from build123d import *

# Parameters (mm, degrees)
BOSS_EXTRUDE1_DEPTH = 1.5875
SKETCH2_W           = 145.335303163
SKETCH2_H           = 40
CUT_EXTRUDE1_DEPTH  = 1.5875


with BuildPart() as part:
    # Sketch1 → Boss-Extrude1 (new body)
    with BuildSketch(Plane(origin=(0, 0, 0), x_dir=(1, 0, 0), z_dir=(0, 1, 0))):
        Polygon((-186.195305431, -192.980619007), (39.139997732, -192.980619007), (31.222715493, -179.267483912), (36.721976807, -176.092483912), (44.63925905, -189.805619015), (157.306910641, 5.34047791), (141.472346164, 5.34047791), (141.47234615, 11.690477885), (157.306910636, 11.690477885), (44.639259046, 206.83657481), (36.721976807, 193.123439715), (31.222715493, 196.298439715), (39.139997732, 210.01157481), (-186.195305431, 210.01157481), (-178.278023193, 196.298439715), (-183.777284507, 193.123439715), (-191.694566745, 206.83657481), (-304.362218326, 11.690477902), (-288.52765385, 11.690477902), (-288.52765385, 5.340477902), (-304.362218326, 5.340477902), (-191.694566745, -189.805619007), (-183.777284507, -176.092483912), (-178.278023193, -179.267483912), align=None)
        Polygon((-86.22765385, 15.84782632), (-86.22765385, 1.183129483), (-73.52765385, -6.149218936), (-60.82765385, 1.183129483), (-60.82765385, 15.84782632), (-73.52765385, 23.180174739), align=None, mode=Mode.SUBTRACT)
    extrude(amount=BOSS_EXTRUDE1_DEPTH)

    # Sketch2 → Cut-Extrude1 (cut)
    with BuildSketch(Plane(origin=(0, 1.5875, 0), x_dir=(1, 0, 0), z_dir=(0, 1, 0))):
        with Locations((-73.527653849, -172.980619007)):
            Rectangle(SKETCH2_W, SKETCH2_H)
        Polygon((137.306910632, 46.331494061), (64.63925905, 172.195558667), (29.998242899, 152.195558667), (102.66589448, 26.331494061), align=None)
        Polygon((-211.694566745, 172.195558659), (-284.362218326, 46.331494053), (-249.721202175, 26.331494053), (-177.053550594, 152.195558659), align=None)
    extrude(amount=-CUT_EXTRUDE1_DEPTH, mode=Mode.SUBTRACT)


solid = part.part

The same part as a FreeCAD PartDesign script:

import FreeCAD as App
import Part
import Sketcher

V = App.Vector
Q = App.Units.Quantity


def add_polygon(sketch, points):
    """Adds a closed chain of lines whose ends are joined by coincident constraints."""
    first, n = sketch.GeometryCount, len(points)
    for a, b in zip(points, points[1:] + points[:1]):
        sketch.addGeometry(Part.LineSegment(App.Vector(*a, 0), App.Vector(*b, 0)), False)
    for i in range(n):
        sketch.addConstraint(Sketcher.Constraint("Coincident", first + i, 2, first + (i + 1) % n, 1))

doc = App.newDocument("Part")
body = doc.addObject("PartDesign::Body", "Body")

# Sketch on XZ plane
sketch1 = body.newObject("Sketcher::SketchObject", "Sketch")
sketch1.AttachmentSupport = (doc.getObject("XZ_Plane"), [""])
sketch1.MapMode = "FlatFace"
add_polygon(sketch1, [(-186, 193), (39, 193), (31, 179), (37, 176), (45, 190), (157, -5), (141, -5), (141, -12), (157, -12), (45, -207), (37, -193), (31, -196), (39, -210), (-186, -210), (-178, -196), (-184, -193), (-192, -207), (-304, -12), (-289, -12), (-289, -5), (-304, -5), (-192, 190), (-184, 176), (-178, 179)])  # lines 0-23
add_polygon(sketch1, [(-86, -1), (-86, -16), (-74, -23), (-61, -16), (-61, -1), (-74, 6)])  # lines 24-29
sketch1.addConstraint(Sketcher.Constraint("Horizontal", 0))
sketch1.addConstraint(Sketcher.Constraint("Horizontal", 5))
sketch1.addConstraint(Sketcher.Constraint("Vertical", 6))
sketch1.addConstraint(Sketcher.Constraint("Horizontal", 7))
sketch1.addConstraint(Sketcher.Constraint("Horizontal", 12))
sketch1.addConstraint(Sketcher.Constraint("Horizontal", 17))
sketch1.addConstraint(Sketcher.Constraint("Vertical", 18))
sketch1.addConstraint(Sketcher.Constraint("Horizontal", 19))
sketch1.addConstraint(Sketcher.Constraint("Vertical", 24))
sketch1.addConstraint(Sketcher.Constraint("Vertical", 27))
sketch1.addConstraint(Sketcher.Constraint("Perpendicular", 1, 2))
sketch1.addConstraint(Sketcher.Constraint("Perpendicular", 2, 3))
sketch1.addConstraint(Sketcher.Constraint("Parallel", 3, 8))
sketch1.addConstraint(Sketcher.Constraint("Parallel", 4, 9))
sketch1.addConstraint(Sketcher.Constraint("Perpendicular", 9, 10))
sketch1.addConstraint(Sketcher.Constraint("Perpendicular", 10, 11))
sketch1.addConstraint(Sketcher.Constraint("Parallel", 8, 13))
sketch1.addConstraint(Sketcher.Constraint("Perpendicular", 13, 14))
sketch1.addConstraint(Sketcher.Constraint("Perpendicular", 14, 15))
sketch1.addConstraint(Sketcher.Constraint("Parallel", 11, 16))
sketch1.addConstraint(Sketcher.Constraint("Parallel", 15, 20))
sketch1.addConstraint(Sketcher.Constraint("Parallel", 16, 21))
sketch1.addConstraint(Sketcher.Constraint("Perpendicular", 21, 22))
sketch1.addConstraint(Sketcher.Constraint("Perpendicular", 22, 23))
sketch1.addConstraint(Sketcher.Constraint("Perpendicular", 20, 25))
sketch1.addConstraint(Sketcher.Constraint("Perpendicular", 23, 26))
sketch1.addConstraint(Sketcher.Constraint("Parallel", 25, 28))
sketch1.addConstraint(Sketcher.Constraint("Parallel", 26, 29))
sketch1.addConstraint(Sketcher.Constraint("Horizontal", 10, 2, 13, 2))
sketch1.addConstraint(Sketcher.Constraint("Horizontal", 9, 2, 14, 2))
sketch1.addConstraint(Sketcher.Constraint("Horizontal", 8, 2, 15, 2))
sketch1.addConstraint(Sketcher.Constraint("Horizontal", 7, 2, 16, 2))
sketch1.addConstraint(Sketcher.Constraint("Horizontal", 5, 2, 18, 2))
sketch1.addConstraint(Sketcher.Constraint("Horizontal", 3, 2, 20, 2))
sketch1.addConstraint(Sketcher.Constraint("Horizontal", 2, 2, 21, 2))
sketch1.addConstraint(Sketcher.Constraint("Horizontal", 1, 2, 22, 2))
sketch1.addConstraint(Sketcher.Constraint("Horizontal", 24, 2, 26, 2))
sketch1.addConstraint(Sketcher.Constraint("Horizontal", 27, 2, 29, 2))
sketch1.addConstraint(Sketcher.Constraint("Vertical", 4, 2, 7, 2))
sketch1.addConstraint(Sketcher.Constraint("Vertical", 3, 2, 8, 2))
sketch1.addConstraint(Sketcher.Constraint("Vertical", 2, 2, 9, 2))
sketch1.addConstraint(Sketcher.Constraint("Vertical", 1, 2, 10, 2))
sketch1.addConstraint(Sketcher.Constraint("Vertical", 0, 2, 11, 2))
sketch1.addConstraint(Sketcher.Constraint("Vertical", 16, 2, 19, 2))
sketch1.addConstraint(Sketcher.Constraint("Vertical", 15, 2, 20, 2))
sketch1.addConstraint(Sketcher.Constraint("Equal", 7, 17))
sketch1.addConstraint(Sketcher.Constraint("Equal", 1, 3))
sketch1.addConstraint(Sketcher.Constraint("Angle", 1, Q("-120 deg")))
sketch1.addConstraint(Sketcher.Constraint("DistanceX", 24, 2, 26, 2, Q("1 in")))
sketch1.addConstraint(Sketcher.Constraint("DistanceY", 6, 2, 6, 1, Q("0.25 in")))
sketch1.addConstraint(Sketcher.Constraint("Distance", 2, Q("0.25 in")))
sketch1.addConstraint(Sketcher.Constraint("DistanceX", 13, 2, 9, 2, 215.0))
sketch1.addConstraint(Sketcher.Constraint("DistanceX", 17, 2, 24, 2, 202.3))
sketch1.addConstraint(Sketcher.Constraint("DistanceX", 26, 2, 6, 2, 202.3))
sketch1.addConstraint(Sketcher.Constraint("DistanceX", 0, 1, 0, 2, 225.335303))
sketch1.addConstraint(Sketcher.Constraint("DistanceX", 5, 2, 5, 1, 15.834564))
sketch1.addConstraint(Sketcher.Constraint("DistanceY", 24, 2, 24, 1, 14.664697))
sketch1.addConstraint(Sketcher.Constraint("DistanceY", -1, 1, 0, 2, 192.980619))
sketch1.addConstraint(Sketcher.Constraint("DistanceX", -1, 1, 3, 2, 44.639259))
sketch1.addConstraint(Sketcher.Constraint("DistanceY", 27, 2, -1, 1, 1.183129))
pad1 = body.newObject("PartDesign::Pad", "Pad")
pad1.Profile = sketch1
pad1.Length = Q("0.0625 in")
pad1.Reversed = True

# Sketch on XZ plane
sketch2 = body.newObject("Sketcher::SketchObject", "Sketch001")
sketch2.AttachmentSupport = (doc.getObject("XZ_Plane"), [""])
sketch2.MapMode = "FlatFace"
sketch2.AttachmentOffset = App.Placement(V(0, 0, -0.0625 * 25.4), App.Rotation())
add_polygon(sketch2, [(-146, 153), (-146, 193), (-1, 193), (-1, 153)])  # lines 0-3
add_polygon(sketch2, [(137, -46), (65, -172), (30, -152), (103, -26)])  # lines 4-7
add_polygon(sketch2, [(-212, -172), (-284, -46), (-250, -26), (-177, -152)])  # lines 8-11
sketch2.addConstraint(Sketcher.Constraint("Vertical", 0))
sketch2.addConstraint(Sketcher.Constraint("Horizontal", 1))
sketch2.addConstraint(Sketcher.Constraint("Vertical", 2))
sketch2.addConstraint(Sketcher.Constraint("Horizontal", 3))
sketch2.addConstraint(Sketcher.Constraint("Perpendicular", 4, 5))
sketch2.addConstraint(Sketcher.Constraint("Perpendicular", 5, 6))
sketch2.addConstraint(Sketcher.Constraint("Perpendicular", 6, 7))
sketch2.addConstraint(Sketcher.Constraint("Perpendicular", 8, 9))
sketch2.addConstraint(Sketcher.Constraint("Perpendicular", 9, 10))
sketch2.addConstraint(Sketcher.Constraint("Perpendicular", 10, 11))
sketch2.addConstraint(Sketcher.Constraint("Horizontal", 7, 2, 8, 2))
sketch2.addConstraint(Sketcher.Constraint("Horizontal", 6, 2, 9, 2))
sketch2.addConstraint(Sketcher.Constraint("Horizontal", 5, 2, 10, 2))
sketch2.addConstraint(Sketcher.Constraint("Equal", 6, 8))
sketch2.addConstraint(Sketcher.Constraint("Angle", 4, Q("-120 deg")))
sketch2.addConstraint(Sketcher.Constraint("DistanceY", 0, 1, 0, 2, 40.0))
sketch2.addConstraint(Sketcher.Constraint("Distance", 5, 40.0))
sketch2.addConstraint(Sketcher.Constraint("DistanceX", 3, 2, 6, 2, 248.8612))
sketch2.addConstraint(Sketcher.Constraint("DistanceX", 9, 2, 2, 2, 248.8612))
sketch2.addConstraint(Sketcher.Constraint("DistanceX", 1, 1, 1, 2, 145.335303))
sketch2.addConstraint(Sketcher.Constraint("DistanceY", -1, 1, 0, 2, 192.980619))
sketch2.addConstraint(Sketcher.Constraint("DistanceX", -1, 1, 4, 2, 64.639259))
sketch2.addConstraint(Sketcher.Constraint("DistanceY", 4, 2, -1, 1, 172.195559))
sketch2.addConstraint(Sketcher.Constraint("DistanceX", -1, 1, 7, 2, 137.306911))
pocket1 = body.newObject("PartDesign::Pocket", "Pocket")
pocket1.Profile = sketch2
pocket1.Length = Q("0.0625 in")
pocket1.Reversed = True

doc.recompute()
